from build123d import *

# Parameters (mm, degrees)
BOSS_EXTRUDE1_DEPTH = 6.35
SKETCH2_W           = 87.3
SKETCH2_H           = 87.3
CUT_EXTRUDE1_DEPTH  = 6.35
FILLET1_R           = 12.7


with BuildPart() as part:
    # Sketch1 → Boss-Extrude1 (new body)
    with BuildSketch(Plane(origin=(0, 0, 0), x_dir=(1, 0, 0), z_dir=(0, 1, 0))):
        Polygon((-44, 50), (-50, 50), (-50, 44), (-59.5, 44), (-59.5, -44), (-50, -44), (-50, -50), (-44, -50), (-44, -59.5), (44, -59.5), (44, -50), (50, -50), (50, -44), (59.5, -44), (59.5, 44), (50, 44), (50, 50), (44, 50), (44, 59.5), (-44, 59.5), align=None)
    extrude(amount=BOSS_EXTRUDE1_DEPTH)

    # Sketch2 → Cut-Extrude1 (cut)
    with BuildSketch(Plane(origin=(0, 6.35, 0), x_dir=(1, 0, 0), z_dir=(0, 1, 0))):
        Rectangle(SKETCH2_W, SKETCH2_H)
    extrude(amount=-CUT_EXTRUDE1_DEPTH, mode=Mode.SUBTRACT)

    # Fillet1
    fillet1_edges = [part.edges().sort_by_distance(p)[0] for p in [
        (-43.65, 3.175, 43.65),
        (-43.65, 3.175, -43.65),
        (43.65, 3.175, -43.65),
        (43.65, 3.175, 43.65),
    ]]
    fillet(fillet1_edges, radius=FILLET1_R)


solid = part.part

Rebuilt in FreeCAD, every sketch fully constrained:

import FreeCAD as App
import Part
import Sketcher
from FreeCAD import Vector
Q = App.Units.Quantity


def edges_at(feature, points):
    """Names of the edges that pass closest to the given points."""
    edges = feature.Shape.Edges
    near = lambda p: min(range(len(edges)), key=lambda i: edges[i].distToShape(Part.Vertex(*p))[0])
    return sorted({f"Edge{near(p) + 1}" for p in points})


def add_polygon(sketch, points):
    """Adds a closed chain of lines whose ends are joined by coincident constraints."""
    first, n = sketch.GeometryCount, len(points)
    for a, b in zip(points, points[1:] + points[:1]):
        sketch.addGeometry(Part.LineSegment(App.Vector(*a, 0), App.Vector(*b, 0)), False)
    for i in range(n):
        sketch.addConstraint(Sketcher.Constraint("Coincident", first + i, 2, first + (i + 1) % n, 1))

doc = App.newDocument("Part")
params = doc.addObject("Spreadsheet::Sheet", "Params")
for row, (alias, value) in enumerate([
    ("sketch1_width", "6 mm"),
    ("sketch1_width2", "88 mm"),
    ("sketch1_width3", "9.5 mm"),
    ("pad1_length", "6.35 mm"),
    ("sketch2_width", "87.3 mm"),
    ("pocket1_length", "6.35 mm"),
    ("fillet_radius", "12.7 mm"),
], start=1):
    params.set(f"A{row}", alias)
    params.set(f"B{row}", "=" + value)
    params.setAlias(f"B{row}", alias)

body = doc.addObject("PartDesign::Body", "Body")

sketch1 = body.newObject("Sketcher::SketchObject", "Sketch")
sketch1.AttachmentSupport = (doc.getObject("XZ_Plane"), [""])
sketch1.MapMode = "FlatFace"
add_polygon(sketch1, [(-44, -50), (-50, -50), (-50, -44), (-59.5, -44), (-59.5, 44), (-50, 44), (-50, 50), (-44, 50), (-44, 59.5), (44, 59.5), (44, 50), (50, 50), (50, 44), (59.5, 44), (59.5, -44), (50, -44), (50, -50), (44, -50), (44, -59.5), (-44, -59.5)])
sketch1.addConstraint(Sketcher.Constraint("Horizontal", 0))
sketch1.addConstraint(Sketcher.Constraint("Vertical", 1))
sketch1.addConstraint(Sketcher.Constraint("Horizontal", 2))
sketch1.addConstraint(Sketcher.Constraint("Vertical", 3))
sketch1.addConstraint(Sketcher.Constraint("Horizontal", 4))
sketch1.addConstraint(Sketcher.Constraint("Vertical", 5))
sketch1.addConstraint(Sketcher.Constraint("Horizontal", 6))
sketch1.addConstraint(Sketcher.Constraint("Vertical", 7))
sketch1.addConstraint(Sketcher.Constraint("Horizontal", 8))
sketch1.addConstraint(Sketcher.Constraint("Vertical", 9))
sketch1.addConstraint(Sketcher.Constraint("Horizontal", 10))
sketch1.addConstraint(Sketcher.Constraint("Vertical", 11))
sketch1.addConstraint(Sketcher.Constraint("Horizontal", 12))
sketch1.addConstraint(Sketcher.Constraint("Vertical", 13))
sketch1.addConstraint(Sketcher.Constraint("Horizontal", 14))
sketch1.addConstraint(Sketcher.Constraint("Vertical", 15))
sketch1.addConstraint(Sketcher.Constraint("Horizontal", 16))
sketch1.addConstraint(Sketcher.Constraint("Vertical", 17))
sketch1.addConstraint(Sketcher.Constraint("Horizontal", 18))
sketch1.addConstraint(Sketcher.Constraint("Vertical", 19))
sketch1.addConstraint(Sketcher.Constraint("Symmetric", 0, 2, 10, 2, -1, 1))
sketch1.addConstraint(Sketcher.Constraint("Symmetric", 2, 2, 12, 2, -1, 1))
sketch1.addConstraint(Sketcher.Constraint("Symmetric", 4, 2, 14, 2, -1, 1))
sketch1.addConstraint(Sketcher.Constraint("Symmetric", 6, 2, 16, 2, -1, 1))
sketch1.addConstraint(Sketcher.Constraint("Symmetric", 8, 2, 18, 2, -1, 1))
sketch1.addConstraint(Sketcher.Constraint("Symmetric", 6, 2, 9, 2, -2))
sketch1.addConstraint(Sketcher.Constraint("Symmetric", 4, 2, 11, 2, -2))
sketch1.addConstraint(Sketcher.Constraint("Equal", 16, 1))
sketch1.addConstraint(Sketcher.Constraint("Equal", 18, 3))
sketch1.addConstraint(Sketcher.Constraint("Equal", 14, 7))
sketch1.addConstraint(Sketcher.Constraint("DistanceX", 0, 2, 0, 1, Q("6 mm")))
sketch1.addConstraint(Sketcher.Constraint("DistanceX", 8, 1, 8, 2, Q("88 mm")))
sketch1.addConstraint(Sketcher.Constraint("DistanceX", 2, 2, 2, 1, Q("9.5 mm")))
sketch1.setExpression("Constraints[50]", "Params.sketch1_width")
sketch1.setExpression("Constraints[51]", "Params.sketch1_width2")
sketch1.setExpression("Constraints[52]", "Params.sketch1_width3")
pad1 = body.newObject("PartDesign::Pad", "Pad")
pad1.Profile = sketch1
pad1.setExpression("Length", "Params.pad1_length")
pad1.Reversed = True

sketch2 = body.newObject("Sketcher::SketchObject", "Sketch001")
sketch2.AttachmentSupport = (doc.getObject("XZ_Plane"), [""])
sketch2.MapMode = "FlatFace"
sketch2.AttachmentOffset = App.Placement(Vector(0, 0, -6.35), App.Rotation())
add_polygon(sketch2, [(-43.65, -43.65), (-43.65, 43.65), (43.65, 43.65), (43.65, -43.65)])
sketch2.addConstraint(Sketcher.Constraint("Vertical", 0))
sketch2.addConstraint(Sketcher.Constraint("Horizontal", 1))
sketch2.addConstraint(Sketcher.Constraint("Vertical", 2))
sketch2.addConstraint(Sketcher.Constraint("Horizontal", 3))
sketch2.addConstraint(Sketcher.Constraint("Symmetric", 0, 2, 2, 2, -1, 1))
sketch2.addConstraint(Sketcher.Constraint("Equal", 3, 0))
sketch2.addConstraint(Sketcher.Constraint("DistanceX", 1, 1, 1, 2, Q("87.3 mm")))
sketch2.setExpression("Constraints[10]", "Params.sketch2_width")
pocket1 = body.newObject("PartDesign::Pocket", "Pocket")
pocket1.Profile = sketch2
pocket1.setExpression("Length", "Params.pocket1_length")
pocket1.Reversed = True
doc.recompute()

fillet = body.newObject("PartDesign::Fillet", "Fillet")
fillet.Base = (pocket1, edges_at(pocket1, [
    (-43.65, 3.175, 43.65),
    (-43.65, 3.175, -43.65),
    (43.65, 3.175, -43.65),
    (43.65, 3.175, 43.65),
]))
fillet.setExpression("Radius", "Params.fillet_radius")

doc.recompute()
